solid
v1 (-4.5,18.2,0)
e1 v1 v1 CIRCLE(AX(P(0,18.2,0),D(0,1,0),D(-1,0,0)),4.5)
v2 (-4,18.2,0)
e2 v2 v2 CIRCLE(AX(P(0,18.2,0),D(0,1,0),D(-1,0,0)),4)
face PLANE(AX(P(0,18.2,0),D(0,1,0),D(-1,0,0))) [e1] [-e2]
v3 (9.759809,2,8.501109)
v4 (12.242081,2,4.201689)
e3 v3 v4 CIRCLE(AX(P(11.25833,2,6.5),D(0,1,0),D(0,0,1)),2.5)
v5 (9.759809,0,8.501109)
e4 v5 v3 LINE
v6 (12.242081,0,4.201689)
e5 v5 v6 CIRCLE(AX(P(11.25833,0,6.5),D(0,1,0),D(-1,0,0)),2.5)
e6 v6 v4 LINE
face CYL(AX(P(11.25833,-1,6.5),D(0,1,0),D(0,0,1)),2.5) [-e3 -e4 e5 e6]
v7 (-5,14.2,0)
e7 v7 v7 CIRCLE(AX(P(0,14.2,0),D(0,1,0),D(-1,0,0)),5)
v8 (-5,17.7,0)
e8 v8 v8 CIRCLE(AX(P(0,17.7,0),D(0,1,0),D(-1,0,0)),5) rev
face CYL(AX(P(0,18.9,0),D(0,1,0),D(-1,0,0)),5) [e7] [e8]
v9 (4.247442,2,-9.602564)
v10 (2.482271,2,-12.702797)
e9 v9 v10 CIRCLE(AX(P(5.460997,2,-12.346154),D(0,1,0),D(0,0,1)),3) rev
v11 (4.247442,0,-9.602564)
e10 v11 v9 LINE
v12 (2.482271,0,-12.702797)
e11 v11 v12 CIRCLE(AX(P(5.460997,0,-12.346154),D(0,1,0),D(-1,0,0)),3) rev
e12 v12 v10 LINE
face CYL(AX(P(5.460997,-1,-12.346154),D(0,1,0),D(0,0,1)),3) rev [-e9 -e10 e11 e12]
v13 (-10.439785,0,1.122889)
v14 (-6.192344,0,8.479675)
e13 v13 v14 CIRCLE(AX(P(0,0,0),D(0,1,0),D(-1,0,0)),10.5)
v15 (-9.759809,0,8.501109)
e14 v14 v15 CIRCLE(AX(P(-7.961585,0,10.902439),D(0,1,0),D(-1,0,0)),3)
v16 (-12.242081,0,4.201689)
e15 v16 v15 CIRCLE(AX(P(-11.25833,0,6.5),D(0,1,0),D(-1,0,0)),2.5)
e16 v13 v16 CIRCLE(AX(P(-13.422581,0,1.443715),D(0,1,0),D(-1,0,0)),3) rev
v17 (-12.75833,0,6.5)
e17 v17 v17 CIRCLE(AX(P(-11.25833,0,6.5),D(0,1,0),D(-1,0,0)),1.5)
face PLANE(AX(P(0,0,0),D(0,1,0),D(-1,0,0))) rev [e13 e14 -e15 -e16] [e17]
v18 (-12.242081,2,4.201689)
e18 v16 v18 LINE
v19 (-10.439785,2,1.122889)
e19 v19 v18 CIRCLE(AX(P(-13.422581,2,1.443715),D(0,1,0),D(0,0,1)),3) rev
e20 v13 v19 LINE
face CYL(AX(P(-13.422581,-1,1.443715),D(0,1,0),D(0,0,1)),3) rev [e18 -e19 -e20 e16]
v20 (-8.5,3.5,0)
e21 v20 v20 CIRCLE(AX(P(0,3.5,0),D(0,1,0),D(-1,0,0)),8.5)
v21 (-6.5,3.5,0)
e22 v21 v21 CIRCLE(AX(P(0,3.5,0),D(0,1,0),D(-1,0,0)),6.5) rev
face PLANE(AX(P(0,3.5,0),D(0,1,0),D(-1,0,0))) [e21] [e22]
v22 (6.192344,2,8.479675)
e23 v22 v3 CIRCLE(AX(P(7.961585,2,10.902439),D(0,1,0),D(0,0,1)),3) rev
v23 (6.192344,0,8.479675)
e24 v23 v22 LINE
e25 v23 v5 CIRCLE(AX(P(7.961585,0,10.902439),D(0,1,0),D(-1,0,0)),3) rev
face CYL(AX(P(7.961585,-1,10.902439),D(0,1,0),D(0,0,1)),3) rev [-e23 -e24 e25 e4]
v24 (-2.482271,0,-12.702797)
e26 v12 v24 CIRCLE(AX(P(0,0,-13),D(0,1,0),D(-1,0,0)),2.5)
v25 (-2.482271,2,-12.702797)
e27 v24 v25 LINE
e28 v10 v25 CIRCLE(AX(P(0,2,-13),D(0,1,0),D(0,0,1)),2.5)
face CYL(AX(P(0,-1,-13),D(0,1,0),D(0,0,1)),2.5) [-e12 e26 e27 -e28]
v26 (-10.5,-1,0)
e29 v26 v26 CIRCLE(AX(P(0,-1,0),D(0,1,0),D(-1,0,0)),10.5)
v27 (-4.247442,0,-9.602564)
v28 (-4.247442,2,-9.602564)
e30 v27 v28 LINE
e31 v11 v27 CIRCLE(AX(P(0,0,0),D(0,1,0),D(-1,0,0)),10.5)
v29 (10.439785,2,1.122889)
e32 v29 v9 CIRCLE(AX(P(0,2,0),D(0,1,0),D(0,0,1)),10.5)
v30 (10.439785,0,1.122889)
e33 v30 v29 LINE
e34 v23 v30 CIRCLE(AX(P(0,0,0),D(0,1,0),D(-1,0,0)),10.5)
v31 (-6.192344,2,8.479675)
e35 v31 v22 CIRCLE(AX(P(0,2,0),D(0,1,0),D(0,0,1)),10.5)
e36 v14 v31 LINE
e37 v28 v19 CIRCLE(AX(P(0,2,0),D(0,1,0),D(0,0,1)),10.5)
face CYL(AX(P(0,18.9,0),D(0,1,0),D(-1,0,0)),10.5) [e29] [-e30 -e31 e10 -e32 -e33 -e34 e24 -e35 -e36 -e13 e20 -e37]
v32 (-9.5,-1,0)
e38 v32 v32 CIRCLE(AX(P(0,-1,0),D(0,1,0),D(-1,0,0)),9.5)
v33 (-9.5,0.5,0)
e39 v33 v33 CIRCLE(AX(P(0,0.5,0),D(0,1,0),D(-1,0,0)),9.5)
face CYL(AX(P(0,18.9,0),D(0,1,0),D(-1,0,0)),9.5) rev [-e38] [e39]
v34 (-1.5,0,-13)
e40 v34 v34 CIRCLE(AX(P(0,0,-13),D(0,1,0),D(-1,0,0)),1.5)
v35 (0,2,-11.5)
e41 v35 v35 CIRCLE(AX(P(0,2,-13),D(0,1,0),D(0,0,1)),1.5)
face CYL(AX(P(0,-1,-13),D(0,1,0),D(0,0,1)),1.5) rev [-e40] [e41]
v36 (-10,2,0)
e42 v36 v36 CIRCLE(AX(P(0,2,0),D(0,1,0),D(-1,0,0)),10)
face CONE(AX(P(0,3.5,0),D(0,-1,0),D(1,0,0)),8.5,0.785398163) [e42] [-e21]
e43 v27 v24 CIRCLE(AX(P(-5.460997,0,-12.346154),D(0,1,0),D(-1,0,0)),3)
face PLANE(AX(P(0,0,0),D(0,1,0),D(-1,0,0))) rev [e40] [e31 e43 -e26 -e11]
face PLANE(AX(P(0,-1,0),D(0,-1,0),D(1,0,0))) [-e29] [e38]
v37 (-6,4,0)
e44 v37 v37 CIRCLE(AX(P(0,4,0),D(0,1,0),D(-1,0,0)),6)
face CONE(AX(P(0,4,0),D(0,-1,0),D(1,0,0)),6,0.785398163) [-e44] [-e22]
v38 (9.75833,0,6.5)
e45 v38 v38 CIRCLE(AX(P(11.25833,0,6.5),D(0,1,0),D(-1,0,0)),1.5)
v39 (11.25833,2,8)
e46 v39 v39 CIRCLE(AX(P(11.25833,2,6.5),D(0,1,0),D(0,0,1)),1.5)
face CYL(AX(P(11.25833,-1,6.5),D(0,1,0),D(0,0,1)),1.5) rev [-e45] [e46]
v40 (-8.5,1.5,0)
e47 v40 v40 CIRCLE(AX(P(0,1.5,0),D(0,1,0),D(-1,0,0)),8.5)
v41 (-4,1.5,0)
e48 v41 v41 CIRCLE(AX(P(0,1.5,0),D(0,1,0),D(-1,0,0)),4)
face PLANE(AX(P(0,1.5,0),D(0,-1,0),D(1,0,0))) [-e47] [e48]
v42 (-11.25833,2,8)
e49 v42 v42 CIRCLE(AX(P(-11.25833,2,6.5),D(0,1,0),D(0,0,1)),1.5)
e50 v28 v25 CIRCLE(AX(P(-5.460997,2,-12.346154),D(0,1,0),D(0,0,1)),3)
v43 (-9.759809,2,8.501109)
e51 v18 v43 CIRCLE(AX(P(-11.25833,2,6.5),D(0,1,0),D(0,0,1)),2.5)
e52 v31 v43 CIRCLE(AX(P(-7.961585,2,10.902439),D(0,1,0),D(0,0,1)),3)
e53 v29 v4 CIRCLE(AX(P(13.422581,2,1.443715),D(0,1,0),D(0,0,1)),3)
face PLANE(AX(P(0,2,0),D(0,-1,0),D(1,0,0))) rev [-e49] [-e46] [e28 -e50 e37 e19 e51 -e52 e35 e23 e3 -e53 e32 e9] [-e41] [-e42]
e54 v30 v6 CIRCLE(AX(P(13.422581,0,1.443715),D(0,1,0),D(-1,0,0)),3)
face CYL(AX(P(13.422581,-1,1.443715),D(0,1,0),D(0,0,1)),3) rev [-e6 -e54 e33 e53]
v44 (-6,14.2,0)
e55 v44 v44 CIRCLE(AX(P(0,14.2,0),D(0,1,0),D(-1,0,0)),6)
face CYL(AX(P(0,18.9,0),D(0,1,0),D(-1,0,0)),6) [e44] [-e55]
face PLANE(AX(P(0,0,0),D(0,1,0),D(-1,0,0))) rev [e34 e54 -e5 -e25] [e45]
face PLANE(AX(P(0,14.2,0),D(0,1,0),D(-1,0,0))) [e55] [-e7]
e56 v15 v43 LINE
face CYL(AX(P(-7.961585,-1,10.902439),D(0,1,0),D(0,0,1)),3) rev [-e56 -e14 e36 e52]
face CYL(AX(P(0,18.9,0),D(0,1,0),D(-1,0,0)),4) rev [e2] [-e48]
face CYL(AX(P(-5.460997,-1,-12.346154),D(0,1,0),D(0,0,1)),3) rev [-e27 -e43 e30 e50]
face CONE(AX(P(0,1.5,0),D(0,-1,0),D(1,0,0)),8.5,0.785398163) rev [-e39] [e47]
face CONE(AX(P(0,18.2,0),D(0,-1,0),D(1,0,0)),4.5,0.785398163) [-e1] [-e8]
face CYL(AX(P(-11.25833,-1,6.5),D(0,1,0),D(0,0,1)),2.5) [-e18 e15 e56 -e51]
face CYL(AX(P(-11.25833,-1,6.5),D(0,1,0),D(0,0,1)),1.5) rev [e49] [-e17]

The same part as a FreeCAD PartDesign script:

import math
import FreeCAD as App
import Part
import Sketcher

V = App.Vector
Q = App.Units.Quantity


def edges_at(feature, points):
    """Names of the edges that pass closest to the given points."""
    edges = feature.Shape.Edges
    near = lambda p: min(range(len(edges)), key=lambda i: edges[i].distToShape(Part.Vertex(*p))[0])
    return sorted({f"Edge{near(p) + 1}" for p in points})

doc = App.newDocument("Part")
params = doc.addObject("Spreadsheet::Sheet", "Params")
for row, (alias, value) in enumerate([
    ("sketch1_width", "5 mm"),
    ("sketch1_width2", "1 mm"),
    ("sketch1_height", "2 mm"),
    ("sketch1_height2", "4 mm"),
    ("sketch1_width3", "5.5 mm"),
    ("revolution_angle", "360 deg"),
    ("chamfer_size", "0.5 mm"),
    ("sketch2_diameter", "3 mm"),
    ("sketch2_radius", "3 mm"),
    ("sketch2_radius2", "15.5 mm"),
    ("sketch2_radius3", "2.5 mm"),
    ("sketch2_radius4", "10.5 mm"),
], start=1):
    params.set(f"A{row}", alias)
    params.set(f"B{row}", "=" + value)
    params.setAlias(f"B{row}", alias)

body = doc.addObject("PartDesign::Body", "Body")

# Sketch on XY plane
sketch1 = body.newObject("Sketcher::SketchObject", "Sketch")
sketch1.AttachmentSupport = (doc.getObject("XY_Plane"), [""])
sketch1.MapMode = "FlatFace"
sketch1.addGeometry(Part.LineSegment(V(10.5, 0, 0), V(15.5, 0, 0)), False)
sketch1.addGeometry(Part.LineSegment(V(15.5, 0, 0), V(15.5, 2, 0)), False)
sketch1.addGeometry(Part.LineSegment(V(15.5, 2, 0), V(10, 2, 0)), False)
sketch1.addGeometry(Part.LineSegment(V(10, 2, 0), V(8.5, 3.5, 0)), False)
sketch1.addGeometry(Part.LineSegment(V(8.5, 3.5, 0), V(6, 3.5, 0)), False)
sketch1.addGeometry(Part.LineSegment(V(6, 3.5, 0), V(6, 14.2, 0)), False)
sketch1.addGeometry(Part.LineSegment(V(6, 14.2, 0), V(5, 14.2, 0)), False)
sketch1.addGeometry(Part.LineSegment(V(5, 14.2, 0), V(5, 18.2, 0)), False)
sketch1.addGeometry(Part.LineSegment(V(5, 18.2, 0), V(4, 18.2, 0)), False)
sketch1.addGeometry(Part.LineSegment(V(4, 18.2, 0), V(4, 1.5, 0)), False)
sketch1.addGeometry(Part.LineSegment(V(4, 1.5, 0), V(8.5, 1.5, 0)), False)
sketch1.addGeometry(Part.LineSegment(V(8.5, 1.5, 0), V(9.5, 0.5, 0)), False)
sketch1.addGeometry(Part.LineSegment(V(9.5, 0.5, 0), V(9.5, -1, 0)), False)
sketch1.addGeometry(Part.LineSegment(V(9.5, -1, 0), V(10.5, -1, 0)), False)
sketch1.addGeometry(Part.LineSegment(V(10.5, -1, 0), V(10.5, 0, 0)), False)
sketch1.addConstraint(Sketcher.Constraint("Coincident", 0, 2, 1, 1))
sketch1.addConstraint(Sketcher.Constraint("Coincident", 1, 2, 2, 1))
sketch1.addConstraint(Sketcher.Constraint("Coincident", 2, 2, 3, 1))
sketch1.addConstraint(Sketcher.Constraint("Coincident", 3, 2, 4, 1))
sketch1.addConstraint(Sketcher.Constraint("Coincident", 4, 2, 5, 1))
sketch1.addConstraint(Sketcher.Constraint("Coincident", 5, 2, 6, 1))
sketch1.addConstraint(Sketcher.Constraint("Coincident", 6, 2, 7, 1))
sketch1.addConstraint(Sketcher.Constraint("Coincident", 7, 2, 8, 1))
sketch1.addConstraint(Sketcher.Constraint("Coincident", 8, 2, 9, 1))
sketch1.addConstraint(Sketcher.Constraint("Coincident", 9, 2, 10, 1))
sketch1.addConstraint(Sketcher.Constraint("Coincident", 10, 2, 11, 1))
sketch1.addConstraint(Sketcher.Constraint("Coincident", 11, 2, 12, 1))
sketch1.addConstraint(Sketcher.Constraint("Coincident", 12, 2, 13, 1))
sketch1.addConstraint(Sketcher.Constraint("Coincident", 13, 2, 14, 1))
sketch1.addConstraint(Sketcher.Constraint("Coincident", 14, 2, 0, 1))
sketch1.addConstraint(Sketcher.Constraint("Horizontal", 0))
sketch1.addConstraint(Sketcher.Constraint("Vertical", 1))
sketch1.addConstraint(Sketcher.Constraint("Horizontal", 2))
sketch1.addConstraint(Sketcher.Constraint("Horizontal", 4))
sketch1.addConstraint(Sketcher.Constraint("Vertical", 5))
sketch1.addConstraint(Sketcher.Constraint("Horizontal", 6))
sketch1.addConstraint(Sketcher.Constraint("Vertical", 7))
sketch1.addConstraint(Sketcher.Constraint("Horizontal", 8))
sketch1.addConstraint(Sketcher.Constraint("Vertical", 9))
sketch1.addConstraint(Sketcher.Constraint("Horizontal", 10))
sketch1.addConstraint(Sketcher.Constraint("Vertical", 12))
sketch1.addConstraint(Sketcher.Constraint("Horizontal", 13))
sketch1.addConstraint(Sketcher.Constraint("Vertical", 14))
sketch1.addConstraint(Sketcher.Constraint("PointOnObject", 0, 2, -1))
sketch1.addConstraint(Sketcher.Constraint("Parallel", 3, 11))
sketch1.addConstraint(Sketcher.Constraint("Vertical", 3, 2, 10, 2))
sketch1.addConstraint(Sketcher.Constraint("Equal", 6, 8))
sketch1.addConstraint(Sketcher.Constraint("Equal", 8, 13))
sketch1.addConstraint(Sketcher.Constraint("Equal", 13, 14))
sketch1.addConstraint(Sketcher.Constraint("DistanceX", 0, 1, 0, 2, Q("5 mm")))
sketch1.addConstraint(Sketcher.Constraint("DistanceX", 6, 2, 6, 1, Q("1 mm")))
sketch1.addConstraint(Sketcher.Constraint("DistanceY", 1, 1, 1, 2, Q("2 mm")))
sketch1.addConstraint(Sketcher.Constraint("DistanceY", 7, 1, 7, 2, Q("4 mm")))
sketch1.addConstraint(Sketcher.Constraint("Angle", 3, Q("135 deg")))
sketch1.addConstraint(Sketcher.Constraint("DistanceX", 2, 2, 2, 1, Q("5.5 mm")))
sketch1.addConstraint(Sketcher.Constraint("DistanceX", 4, 2, 4, 1, Q("2.5 mm")))
sketch1.addConstraint(Sketcher.Constraint("DistanceY", 5, 1, 5, 2, Q("10.7 mm")))
sketch1.addConstraint(Sketcher.Constraint("DistanceY", 9, 2, 9, 1, Q("16.7 mm")))
sketch1.addConstraint(Sketcher.Constraint("DistanceX", -1, 1, 2, 2, Q("10 mm")))
sketch1.addConstraint(Sketcher.Constraint("DistanceX", -1, 1, 4, 2, Q("6 mm")))
sketch1.setExpression("Constraints[34]", "Params.sketch1_width")
sketch1.setExpression("Constraints[35]", "Params.sketch1_width2")
sketch1.setExpression("Constraints[36]", "Params.sketch1_height")
sketch1.setExpression("Constraints[37]", "Params.sketch1_height2")
sketch1.setExpression("Constraints[39]", "Params.sketch1_width3")
revolution = body.newObject("PartDesign::Revolution", "Revolution")
revolution.Profile = sketch1
revolution.ReferenceAxis = (sketch1, ["V_Axis"])
revolution.setExpression("Angle", "Params.revolution_angle")
doc.recompute()

chamfer = body.newObject("PartDesign::Chamfer", "Chamfer")
chamfer.Base = (revolution, edges_at(revolution, [(5, 18.2, 0), (6, 3.5, 0)]))
chamfer.setExpression("Size", "Params.chamfer_size")

# Sketch on XZ plane
sketch2 = body.newObject("Sketcher::SketchObject", "Sketch001")
sketch2.AttachmentSupport = (doc.getObject("XZ_Plane"), [""])
sketch2.MapMode = "FlatFace"
sketch2.AttachmentOffset = App.Placement(V(0, 0, -2), App.Rotation())
sketch2.addGeometry(Part.Circle(V(0, -13, 0), V(0, 0, 1), 1.5), False)
sketch2.addGeometry(Part.Circle(V(11.3, 6.5, 0), V(0, 0, 1), 1.5), False)
sketch2.addGeometry(Part.Circle(V(-11.3, 6.5, 0), V(0, 0, 1), 1.5), False)
sketch2.addGeometry(Part.ArcOfCircle(Part.Circle(V(0, 0, 0), V(0, 0, 1), 15.5), math.radians(-90), math.radians(30)), False)
sketch2.addGeometry(Part.ArcOfCircle(Part.Circle(V(0, -13, 0), V(0, 0, 1), 2.5), math.radians(-90), math.radians(7)), False)
sketch2.addGeometry(Part.ArcOfCircle(Part.Circle(V(5.5, -12.3, 0), V(0, 0, 1), 3), math.radians(114), math.radians(187)), False)
sketch2.addGeometry(Part.ArcOfCircle(Part.Circle(V(0, 0, 0), V(0, 0, 1), 10.5), math.radians(-66), math.radians(6)), False)
sketch2.addGeometry(Part.ArcOfCircle(Part.Circle(V(13.4, 1.4, 0), V(0, 0, 1), 3), math.radians(113), math.radians(186)), False)
sketch2.addGeometry(Part.ArcOfCircle(Part.Circle(V(11.3, 6.5, 0), V(0, 0, 1), 2.5), math.radians(-67), math.radians(30)), False)
sketch2.addGeometry(Part.ArcOfCircle(Part.Circle(V(0, -13, 0), V(0, 0, 1), 2.5), math.radians(173), math.radians(270)), False)
sketch2.addGeometry(Part.ArcOfCircle(Part.Circle(V(0, 0, 0), V(0, 0, 1), 15.5), math.radians(150), math.radians(270)), False)
sketch2.addGeometry(Part.ArcOfCircle(Part.Circle(V(-11.3, 6.5, 0), V(0, 0, 1), 2.5), math.radians(150), math.radians(247)), False)
sketch2.addGeometry(Part.ArcOfCircle(Part.Circle(V(-13.4, 1.4, 0), V(0, 0, 1), 3), math.radians(-6), math.radians(67)), False)
sketch2.addGeometry(Part.ArcOfCircle(Part.Circle(V(0, 0, 0), V(0, 0, 1), 10.5), math.radians(174), math.radians(246)), False)
sketch2.addGeometry(Part.ArcOfCircle(Part.Circle(V(-5.5, -12.3, 0), V(0, 0, 1), 3), math.radians(-7), math.radians(66)), False)
sketch2.addGeometry(Part.ArcOfCircle(Part.Circle(V(0, 0, 0), V(0, 0, 1), 15.5), math.radians(30), math.radians(150)), False)
sketch2.addGeometry(Part.ArcOfCircle(Part.Circle(V(11.3, 6.5, 0), V(0, 0, 1), 2.5), math.radians(30), math.radians(127)), False)
sketch2.addGeometry(Part.ArcOfCircle(Part.Circle(V(8, 10.9, 0), V(0, 0, 1), 3), math.radians(-126), math.radians(-53)), False)
sketch2.addGeometry(Part.ArcOfCircle(Part.Circle(V(0, 0, 0), V(0, 0, 1), 10.5), math.radians(54), math.radians(126)), False)
sketch2.addGeometry(Part.ArcOfCircle(Part.Circle(V(-8, 10.9, 0), V(0, 0, 1), 3), math.radians(-127), math.radians(-54)), False)
sketch2.addGeometry(Part.ArcOfCircle(Part.Circle(V(-11.3, 6.5, 0), V(0, 0, 1), 2.5), math.radians(53), math.radians(150)), False)
sketch2.addConstraint(Sketcher.Constraint("Tangent", 3, 1, 4, 1))
sketch2.addConstraint(Sketcher.Constraint("Tangent", 4, 2, 5, 2))
sketch2.addConstraint(Sketcher.Constraint("Tangent", 5, 1, 6, 1))
sketch2.addConstraint(Sketcher.Constraint("Tangent", 6, 2, 7, 2))
sketch2.addConstraint(Sketcher.Constraint("Tangent", 7, 1, 8, 1))
sketch2.addConstraint(Sketcher.Constraint("Tangent", 8, 2, 3, 2))
sketch2.addConstraint(Sketcher.Constraint("Tangent", 9, 2, 10, 2))
sketch2.addConstraint(Sketcher.Constraint("Tangent", 10, 1, 11, 1))
sketch2.addConstraint(Sketcher.Constraint("Tangent", 11, 2, 12, 2))
sketch2.addConstraint(Sketcher.Constraint("Tangent", 12, 1, 13, 1))
sketch2.addConstraint(Sketcher.Constraint("Tangent", 13, 2, 14, 2))
sketch2.addConstraint(Sketcher.Constraint("Tangent", 14, 1, 9, 1))
sketch2.addConstraint(Sketcher.Constraint("Tangent", 15, 1, 16, 1))
sketch2.addConstraint(Sketcher.Constraint("Tangent", 16, 2, 17, 2))
sketch2.addConstraint(Sketcher.Constraint("Tangent", 17, 1, 18, 1))
sketch2.addConstraint(Sketcher.Constraint("Tangent", 18, 2, 19, 2))
sketch2.addConstraint(Sketcher.Constraint("Tangent", 19, 1, 20, 1))
sketch2.addConstraint(Sketcher.Constraint("Tangent", 20, 2, 15, 2))
sketch2.addConstraint(Sketcher.Constraint("Coincident", 3, 3, -1, 1))
sketch2.addConstraint(Sketcher.Constraint("Coincident", 6, 3, -1, 1))
sketch2.addConstraint(Sketcher.Constraint("Coincident", 10, 3, -1, 1))
sketch2.addConstraint(Sketcher.Constraint("Coincident", 13, 3, -1, 1))
sketch2.addConstraint(Sketcher.Constraint("Coincident", 15, 3, -1, 1))
sketch2.addConstraint(Sketcher.Constraint("Coincident", 18, 3, -1, 1))
sketch2.addConstraint(Sketcher.Constraint("Coincident", 4, 3, 0, 3))
sketch2.addConstraint(Sketcher.Constraint("Coincident", 8, 3, 1, 3))
sketch2.addConstraint(Sketcher.Constraint("Coincident", 9, 3, 0, 3))
sketch2.addConstraint(Sketcher.Constraint("Coincident", 11, 3, 2, 3))
sketch2.addConstraint(Sketcher.Constraint("Coincident", 16, 3, 1, 3))
sketch2.addConstraint(Sketcher.Constraint("Coincident", 20, 3, 2, 3))
sketch2.addConstraint(Sketcher.Constraint("Equal", 0, 1))
sketch2.addConstraint(Sketcher.Constraint("Equal", 1, 2))
sketch2.addConstraint(Sketcher.Constraint("Equal", 5, 7))
sketch2.addConstraint(Sketcher.Constraint("Equal", 4, 8))
sketch2.addConstraint(Sketcher.Constraint("Equal", 8, 9))
sketch2.addConstraint(Sketcher.Constraint("Equal", 9, 11))
sketch2.addConstraint(Sketcher.Constraint("Equal", 7, 12))
sketch2.addConstraint(Sketcher.Constraint("Equal", 6, 13))
sketch2.addConstraint(Sketcher.Constraint("Equal", 12, 14))
sketch2.addConstraint(Sketcher.Constraint("Equal", 10, 15))
sketch2.addConstraint(Sketcher.Constraint("Equal", 14, 17))
sketch2.addConstraint(Sketcher.Constraint("Equal", 13, 18))
sketch2.addConstraint(Sketcher.Constraint("Equal", 17, 19))
sketch2.addConstraint(Sketcher.Constraint("PointOnObject", 0, 3, -2))
sketch2.addConstraint(Sketcher.Constraint("Horizontal", 1, 3, 2, 3))
sketch2.addConstraint(Sketcher.Constraint("Diameter", 0, Q("3 mm")))
sketch2.addConstraint(Sketcher.Constraint("Radius", 5, Q("3 mm")))
sketch2.addConstraint(Sketcher.Constraint("Radius", 3, Q("15.5 mm")))
sketch2.addConstraint(Sketcher.Constraint("Radius", 4, Q("2.5 mm")))
sketch2.addConstraint(Sketcher.Constraint("Radius", 6, Q("10.5 mm")))
sketch2.addConstraint(Sketcher.Constraint("DistanceY", -1, 1, 1, 3, Q("6.5 mm")))
sketch2.setExpression("Constraints[45]", "Params.sketch2_diameter")
sketch2.setExpression("Constraints[46]", "Params.sketch2_radius")
sketch2.setExpression("Constraints[47]", "Params.sketch2_radius2")
sketch2.setExpression("Constraints[48]", "Params.sketch2_radius3")
sketch2.setExpression("Constraints[49]", "Params.sketch2_radius4")
pocket1 = body.newObject("PartDesign::Pocket", "Pocket")
pocket1.Profile = sketch2
pocket1.Type = "ThroughAll"
pocket1.Reversed = True

doc.recompute()
